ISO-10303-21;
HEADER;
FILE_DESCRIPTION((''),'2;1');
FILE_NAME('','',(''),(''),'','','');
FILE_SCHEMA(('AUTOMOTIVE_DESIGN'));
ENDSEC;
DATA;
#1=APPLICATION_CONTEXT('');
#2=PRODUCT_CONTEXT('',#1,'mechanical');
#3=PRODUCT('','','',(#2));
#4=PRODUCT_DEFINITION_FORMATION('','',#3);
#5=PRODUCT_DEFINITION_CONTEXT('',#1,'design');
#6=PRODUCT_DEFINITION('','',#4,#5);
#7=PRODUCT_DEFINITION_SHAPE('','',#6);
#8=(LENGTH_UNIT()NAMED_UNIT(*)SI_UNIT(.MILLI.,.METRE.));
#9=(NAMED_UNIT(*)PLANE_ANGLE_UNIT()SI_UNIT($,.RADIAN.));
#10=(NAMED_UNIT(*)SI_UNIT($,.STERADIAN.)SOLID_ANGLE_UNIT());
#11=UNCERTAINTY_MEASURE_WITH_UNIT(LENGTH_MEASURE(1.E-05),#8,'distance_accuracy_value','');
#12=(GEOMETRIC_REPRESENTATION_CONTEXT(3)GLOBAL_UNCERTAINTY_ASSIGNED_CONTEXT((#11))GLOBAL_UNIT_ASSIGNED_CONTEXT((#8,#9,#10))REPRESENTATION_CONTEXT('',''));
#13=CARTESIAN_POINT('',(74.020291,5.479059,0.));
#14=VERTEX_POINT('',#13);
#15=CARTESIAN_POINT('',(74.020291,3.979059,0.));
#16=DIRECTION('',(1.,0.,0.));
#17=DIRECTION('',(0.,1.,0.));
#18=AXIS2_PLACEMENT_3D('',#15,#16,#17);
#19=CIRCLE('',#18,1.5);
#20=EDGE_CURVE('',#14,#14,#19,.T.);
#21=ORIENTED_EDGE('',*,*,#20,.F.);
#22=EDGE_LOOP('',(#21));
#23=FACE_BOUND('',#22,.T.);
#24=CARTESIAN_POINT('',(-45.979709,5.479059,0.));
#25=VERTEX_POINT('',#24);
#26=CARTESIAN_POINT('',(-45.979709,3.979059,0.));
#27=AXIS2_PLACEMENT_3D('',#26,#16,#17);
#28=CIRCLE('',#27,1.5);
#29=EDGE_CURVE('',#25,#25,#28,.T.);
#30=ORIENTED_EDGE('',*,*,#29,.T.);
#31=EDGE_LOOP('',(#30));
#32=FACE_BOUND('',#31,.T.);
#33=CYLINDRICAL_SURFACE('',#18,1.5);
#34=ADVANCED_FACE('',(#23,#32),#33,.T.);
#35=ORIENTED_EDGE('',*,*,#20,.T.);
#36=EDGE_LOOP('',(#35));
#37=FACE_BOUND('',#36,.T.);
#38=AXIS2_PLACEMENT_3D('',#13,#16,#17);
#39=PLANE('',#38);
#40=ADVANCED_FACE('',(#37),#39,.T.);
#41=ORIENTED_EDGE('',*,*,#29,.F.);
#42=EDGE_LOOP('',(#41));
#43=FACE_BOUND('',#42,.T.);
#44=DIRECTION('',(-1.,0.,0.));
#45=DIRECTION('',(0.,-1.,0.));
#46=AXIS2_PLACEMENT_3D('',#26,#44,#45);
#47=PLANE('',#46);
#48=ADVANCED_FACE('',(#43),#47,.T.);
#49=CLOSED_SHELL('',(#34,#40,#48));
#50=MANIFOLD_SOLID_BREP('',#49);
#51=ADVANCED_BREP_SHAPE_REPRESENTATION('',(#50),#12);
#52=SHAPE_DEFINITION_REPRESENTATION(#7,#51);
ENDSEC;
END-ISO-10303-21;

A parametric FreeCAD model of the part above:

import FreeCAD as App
import Part
import Sketcher


def add_polygon(sketch, points):
    """Adds a closed chain of lines whose ends are joined by coincident constraints."""
    first, n = sketch.GeometryCount, len(points)
    for a, b in zip(points, points[1:] + points[:1]):
        sketch.addGeometry(Part.LineSegment(App.Vector(*a, 0), App.Vector(*b, 0)), False)
    for i in range(n):
        sketch.addConstraint(Sketcher.Constraint("Coincident", first + i, 2, first + (i + 1) % n, 1))

doc = App.newDocument("Part")
body = doc.addObject("PartDesign::Body", "Body")

sketch1 = body.newObject("Sketcher::SketchObject", "Sketch")
sketch1.AttachmentSupport = (doc.getObject("XY_Plane"), [""])
sketch1.MapMode = "FlatFace"
add_polygon(sketch1, [(-46, 5.5), (-46, 4), (74, 4), (74, 5.5)])
sketch1.addGeometry(Part.LineSegment(App.Vector(74, 4, 0), App.Vector(-46, 4, 0)), True)
sketch1.addConstraint([
    Sketcher.Constraint("Vertical", 0),
    Sketcher.Constraint("Horizontal", 1),
    Sketcher.Constraint("Vertical", 2),
    Sketcher.Constraint("Horizontal", 3),
    Sketcher.Constraint("Horizontal", 4),
    Sketcher.Constraint("Coincident", 4, 1, 1, 2),
    Sketcher.Constraint("Vertical", 3, 2, 4, 2),
    Sketcher.Constraint("DistanceX", 1, 1, 1, 2, 120.0),
    Sketcher.Constraint("DistanceY", 0, 2, 0, 1, 1.5),
    Sketcher.Constraint("DistanceX", 0, 2, -1, 1, 45.979709),
    Sketcher.Constraint("DistanceY", -1, 1, 0, 2, 3.979059),
])
revolution = body.newObject("PartDesign::Revolution", "Revolution")
revolution.Profile = sketch1
revolution.ReferenceAxis = (sketch1, ["Axis0"])
revolution.Angle = 360

doc.recompute()
